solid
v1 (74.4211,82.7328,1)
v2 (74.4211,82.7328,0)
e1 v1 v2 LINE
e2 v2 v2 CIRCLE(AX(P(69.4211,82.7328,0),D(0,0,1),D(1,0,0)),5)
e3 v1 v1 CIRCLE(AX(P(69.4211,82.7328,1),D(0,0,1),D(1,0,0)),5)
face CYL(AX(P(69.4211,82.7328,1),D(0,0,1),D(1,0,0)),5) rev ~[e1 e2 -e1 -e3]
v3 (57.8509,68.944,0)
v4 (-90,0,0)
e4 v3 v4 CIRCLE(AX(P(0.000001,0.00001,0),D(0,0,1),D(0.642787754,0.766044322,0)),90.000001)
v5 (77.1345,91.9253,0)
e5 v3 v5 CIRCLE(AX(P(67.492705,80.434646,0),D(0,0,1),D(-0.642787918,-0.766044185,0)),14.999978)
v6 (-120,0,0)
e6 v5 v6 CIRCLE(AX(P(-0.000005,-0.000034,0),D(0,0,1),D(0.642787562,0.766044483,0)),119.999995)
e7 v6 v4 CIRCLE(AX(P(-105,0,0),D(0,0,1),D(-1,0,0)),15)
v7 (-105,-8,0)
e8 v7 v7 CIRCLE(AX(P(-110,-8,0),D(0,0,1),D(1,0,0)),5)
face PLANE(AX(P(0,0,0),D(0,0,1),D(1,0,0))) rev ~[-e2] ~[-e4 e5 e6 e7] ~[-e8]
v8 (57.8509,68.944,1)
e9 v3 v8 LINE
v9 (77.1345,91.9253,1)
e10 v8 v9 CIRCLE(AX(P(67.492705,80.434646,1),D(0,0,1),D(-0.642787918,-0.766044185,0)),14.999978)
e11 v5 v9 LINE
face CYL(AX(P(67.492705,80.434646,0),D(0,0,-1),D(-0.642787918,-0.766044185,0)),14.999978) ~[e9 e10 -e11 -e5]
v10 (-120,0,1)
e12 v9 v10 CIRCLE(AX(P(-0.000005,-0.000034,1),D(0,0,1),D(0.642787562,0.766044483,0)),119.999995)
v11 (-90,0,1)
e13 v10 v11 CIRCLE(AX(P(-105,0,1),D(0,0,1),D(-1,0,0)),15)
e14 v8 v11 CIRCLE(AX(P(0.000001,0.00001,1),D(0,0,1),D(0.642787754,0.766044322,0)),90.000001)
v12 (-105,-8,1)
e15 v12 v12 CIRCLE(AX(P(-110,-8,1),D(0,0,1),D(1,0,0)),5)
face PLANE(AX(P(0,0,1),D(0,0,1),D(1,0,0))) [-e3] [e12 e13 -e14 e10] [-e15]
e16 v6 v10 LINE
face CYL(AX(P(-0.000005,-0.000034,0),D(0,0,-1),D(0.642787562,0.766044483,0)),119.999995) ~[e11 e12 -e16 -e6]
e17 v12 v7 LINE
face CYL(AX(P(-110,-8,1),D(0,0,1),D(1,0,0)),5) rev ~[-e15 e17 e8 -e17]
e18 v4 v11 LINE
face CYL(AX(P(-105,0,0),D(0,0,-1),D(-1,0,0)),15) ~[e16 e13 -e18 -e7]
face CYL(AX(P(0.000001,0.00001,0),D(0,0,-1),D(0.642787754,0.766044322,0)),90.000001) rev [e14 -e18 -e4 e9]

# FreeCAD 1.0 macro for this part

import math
import FreeCAD as App
import Part
import Sketcher

doc = App.newDocument("Part")
body = doc.addObject("PartDesign::Body", "Body")

# Sketch on XY plane
sketch1 = doc.addObject("Sketcher::SketchObject", "Sketch")
body.addObject(sketch1)
sketch1.AttachmentSupport = (doc.XY_Plane, [""])
sketch1.MapMode = "FlatFace"
sketch1.addGeometry([
    Part.ArcOfCircle(Part.Circle(App.Vector(67.4927, 80.4347, 0), App.Vector(0, 0, 1), 15.000016), math.radians(-129.999877), math.radians(49.999878)),
    Part.ArcOfCircle(Part.Circle(App.Vector(0, 0, 0), App.Vector(0, 0, 1), 119.999966), math.radians(49.999995), math.radians(180)),
    Part.ArcOfCircle(Part.Circle(App.Vector(-105, 0, 0), App.Vector(0, 0, 1), 15), math.radians(180), math.radians(360)),
    Part.ArcOfCircle(Part.Circle(App.Vector(0, 0, 0), App.Vector(0, 0, 1), 90.00001), math.radians(49.999993), math.radians(180)),
], False)
sketch1.addConstraint([
    Sketcher.Constraint("Tangent", 0, 2, 1, 1),
    Sketcher.Constraint("Tangent", 1, 2, 2, 1),
    Sketcher.Constraint("Tangent", 2, 2, 3, 2),
    Sketcher.Constraint("Tangent", 3, 1, 0, 1),
    Sketcher.Constraint("Coincident", 1, 3, -1, 1),
    Sketcher.Constraint("Coincident", 3, 3, -1, 1),
    Sketcher.Constraint("PointOnObject", 2, 3, -1),
    Sketcher.Constraint("Radius", 0, 15.0),
    Sketcher.Constraint("Radius", 1, 120.0),
    Sketcher.Constraint("DistanceX", -1, 1, 3, 1, 57.851),
])
pad1 = doc.addObject("PartDesign::Pad", "Pad")
body.addObject(pad1)
pad1.Profile = sketch1
pad1.Length = 1

# Sketch on XY plane
sketch2 = doc.addObject("Sketcher::SketchObject", "Sketch001")
body.addObject(sketch2)
sketch2.AttachmentSupport = (doc.XY_Plane, [""])
sketch2.MapMode = "FlatFace"
sketch2.AttachmentOffset = App.Placement(App.Vector(0, 0, 1), App.Rotation())
sketch2.addGeometry([
    Part.Circle(App.Vector(-110, -8, 0), App.Vector(0, 0, 1), 5),
    Part.Circle(App.Vector(69.4211, 82.7328, 0), App.Vector(0, 0, 1), 5),
], False)
sketch2.addConstraint([
    Sketcher.Constraint("Equal", 0, 1),
    Sketcher.Constraint("Diameter", 0, 10.0),
    Sketcher.Constraint("DistanceY", 0, 3, -1, 1, 8.0),
    Sketcher.Constraint("DistanceX", 0, 3, -1, 1, 110.0),
    Sketcher.Constraint("DistanceY", -1, 1, 1, 3, 82.7328),
    Sketcher.Constraint("DistanceX", -1, 1, 1, 3, 69.421),
])
pocket1 = doc.addObject("PartDesign::Pocket", "Pocket")
body.addObject(pocket1)
pocket1.Profile = sketch2
pocket1.Type = "ThroughAll"

doc.recompute()
